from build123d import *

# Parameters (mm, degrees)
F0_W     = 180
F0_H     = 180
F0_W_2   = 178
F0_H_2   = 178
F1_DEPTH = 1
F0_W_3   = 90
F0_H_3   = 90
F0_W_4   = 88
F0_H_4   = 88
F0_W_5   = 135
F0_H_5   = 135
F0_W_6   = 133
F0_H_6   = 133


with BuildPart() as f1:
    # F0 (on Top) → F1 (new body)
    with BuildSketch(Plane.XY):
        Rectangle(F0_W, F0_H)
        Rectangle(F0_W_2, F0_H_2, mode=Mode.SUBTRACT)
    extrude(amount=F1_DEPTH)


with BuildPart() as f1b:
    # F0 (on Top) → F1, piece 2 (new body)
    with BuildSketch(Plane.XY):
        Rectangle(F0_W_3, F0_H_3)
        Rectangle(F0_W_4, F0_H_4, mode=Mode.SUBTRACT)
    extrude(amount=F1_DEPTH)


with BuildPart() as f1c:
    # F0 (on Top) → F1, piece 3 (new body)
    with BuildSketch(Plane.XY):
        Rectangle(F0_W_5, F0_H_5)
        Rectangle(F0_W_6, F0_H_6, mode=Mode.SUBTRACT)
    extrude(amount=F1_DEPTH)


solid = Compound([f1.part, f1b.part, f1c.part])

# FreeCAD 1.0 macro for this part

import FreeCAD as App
import Part
import Sketcher

V = App.Vector


def add_polygon(sketch, points):
    """Adds a closed chain of lines whose ends are joined by coincident constraints."""
    first, n = sketch.GeometryCount, len(points)
    for a, b in zip(points, points[1:] + points[:1]):
        sketch.addGeometry(Part.LineSegment(App.Vector(*a, 0), App.Vector(*b, 0)), False)
    for i in range(n):
        sketch.addConstraint(Sketcher.Constraint("Coincident", first + i, 2, first + (i + 1) % n, 1))

doc = App.newDocument("Part")
body = doc.addObject("PartDesign::Body", "Body")

sketch1 = body.newObject("Sketcher::SketchObject", "Sketch")
sketch1.AttachmentSupport = (doc.getObject("XY_Plane"), [""])
sketch1.MapMode = "FlatFace"
add_polygon(sketch1, [(-90, 90), (-90, -90), (90, -90), (90, 90)])
add_polygon(sketch1, [(89, -89), (-89, -89), (-89, 89), (89, 89)])
sketch1.addConstraint([
    Sketcher.Constraint("Vertical", 0),
    Sketcher.Constraint("Horizontal", 1),
    Sketcher.Constraint("Vertical", 2),
    Sketcher.Constraint("Horizontal", 3),
    Sketcher.Constraint("Horizontal", 4),
    Sketcher.Constraint("Vertical", 5),
    Sketcher.Constraint("Horizontal", 6),
    Sketcher.Constraint("Vertical", 7),
    Sketcher.Constraint("Symmetric", 0, 2, 2, 2, -1, 1),
    Sketcher.Constraint("Symmetric", 4, 2, 6, 2, -1, 1),
    Sketcher.Constraint("Equal", 3, 0),
    Sketcher.Constraint("Equal", 6, 5),
    Sketcher.Constraint("DistanceX", 1, 1, 1, 2, 180.0),
    Sketcher.Constraint("DistanceX", 4, 2, 4, 1, 178.0),
])
pad1 = body.newObject("PartDesign::Pad", "Pad")
pad1.Profile = sketch1
pad1.Length = 1
body2 = doc.addObject("PartDesign::Body", "Body001")

sketch2 = body2.newObject("Sketcher::SketchObject", "Sketch001")
sketch2.AttachmentSupport = (doc.getObject("XY_Plane001"), [""])
sketch2.MapMode = "FlatFace"
add_polygon(sketch2, [(-45, 45), (-45, -45), (45, -45), (45, 45)])
add_polygon(sketch2, [(44, -44), (-44, -44), (-44, 44), (44, 44)])
sketch2.addConstraint([
    Sketcher.Constraint("Vertical", 0),
    Sketcher.Constraint("Horizontal", 1),
    Sketcher.Constraint("Vertical", 2),
    Sketcher.Constraint("Horizontal", 3),
    Sketcher.Constraint("Horizontal", 4),
    Sketcher.Constraint("Vertical", 5),
    Sketcher.Constraint("Horizontal", 6),
    Sketcher.Constraint("Vertical", 7),
    Sketcher.Constraint("Symmetric", 0, 2, 2, 2, -1, 1),
    Sketcher.Constraint("Symmetric", 4, 2, 6, 2, -1, 1),
    Sketcher.Constraint("Equal", 3, 0),
    Sketcher.Constraint("Equal", 6, 5),
    Sketcher.Constraint("DistanceX", 1, 1, 1, 2, 90.0),
    Sketcher.Constraint("DistanceX", 4, 2, 4, 1, 88.0),
])
pad2 = body2.newObject("PartDesign::Pad", "Pad001")
pad2.Profile = sketch2
pad2.Length = 1
body3 = doc.addObject("PartDesign::Body", "Body002")

sketch3 = body3.newObject("Sketcher::SketchObject", "Sketch002")
sketch3.AttachmentSupport = (doc.getObject("XY_Plane002"), [""])
sketch3.MapMode = "FlatFace"
add_polygon(sketch3, [(-68, 68), (-68, -68), (68, -68), (68, 68)])
add_polygon(sketch3, [(66, -66), (-66, -66), (-66, 66), (66, 66)])
sketch3.addConstraint([
    Sketcher.Constraint("Vertical", 0),
    Sketcher.Constraint("Horizontal", 1),
    Sketcher.Constraint("Vertical", 2),
    Sketcher.Constraint("Horizontal", 3),
    Sketcher.Constraint("Horizontal", 4),
    Sketcher.Constraint("Vertical", 5),
    Sketcher.Constraint("Horizontal", 6),
    Sketcher.Constraint("Vertical", 7),
    Sketcher.Constraint("Symmetric", 0, 2, 2, 2, -1, 1),
    Sketcher.Constraint("Symmetric", 4, 2, 6, 2, -1, 1),
    Sketcher.Constraint("Equal", 3, 0),
    Sketcher.Constraint("Equal", 6, 5),
    Sketcher.Constraint("DistanceX", 1, 1, 1, 2, 135.0),
    Sketcher.Constraint("DistanceX", 4, 2, 4, 1, 133.0),
])
pad3 = body3.newObject("PartDesign::Pad", "Pad002")
pad3.Profile = sketch3
pad3.Length = 1

doc.recompute()
